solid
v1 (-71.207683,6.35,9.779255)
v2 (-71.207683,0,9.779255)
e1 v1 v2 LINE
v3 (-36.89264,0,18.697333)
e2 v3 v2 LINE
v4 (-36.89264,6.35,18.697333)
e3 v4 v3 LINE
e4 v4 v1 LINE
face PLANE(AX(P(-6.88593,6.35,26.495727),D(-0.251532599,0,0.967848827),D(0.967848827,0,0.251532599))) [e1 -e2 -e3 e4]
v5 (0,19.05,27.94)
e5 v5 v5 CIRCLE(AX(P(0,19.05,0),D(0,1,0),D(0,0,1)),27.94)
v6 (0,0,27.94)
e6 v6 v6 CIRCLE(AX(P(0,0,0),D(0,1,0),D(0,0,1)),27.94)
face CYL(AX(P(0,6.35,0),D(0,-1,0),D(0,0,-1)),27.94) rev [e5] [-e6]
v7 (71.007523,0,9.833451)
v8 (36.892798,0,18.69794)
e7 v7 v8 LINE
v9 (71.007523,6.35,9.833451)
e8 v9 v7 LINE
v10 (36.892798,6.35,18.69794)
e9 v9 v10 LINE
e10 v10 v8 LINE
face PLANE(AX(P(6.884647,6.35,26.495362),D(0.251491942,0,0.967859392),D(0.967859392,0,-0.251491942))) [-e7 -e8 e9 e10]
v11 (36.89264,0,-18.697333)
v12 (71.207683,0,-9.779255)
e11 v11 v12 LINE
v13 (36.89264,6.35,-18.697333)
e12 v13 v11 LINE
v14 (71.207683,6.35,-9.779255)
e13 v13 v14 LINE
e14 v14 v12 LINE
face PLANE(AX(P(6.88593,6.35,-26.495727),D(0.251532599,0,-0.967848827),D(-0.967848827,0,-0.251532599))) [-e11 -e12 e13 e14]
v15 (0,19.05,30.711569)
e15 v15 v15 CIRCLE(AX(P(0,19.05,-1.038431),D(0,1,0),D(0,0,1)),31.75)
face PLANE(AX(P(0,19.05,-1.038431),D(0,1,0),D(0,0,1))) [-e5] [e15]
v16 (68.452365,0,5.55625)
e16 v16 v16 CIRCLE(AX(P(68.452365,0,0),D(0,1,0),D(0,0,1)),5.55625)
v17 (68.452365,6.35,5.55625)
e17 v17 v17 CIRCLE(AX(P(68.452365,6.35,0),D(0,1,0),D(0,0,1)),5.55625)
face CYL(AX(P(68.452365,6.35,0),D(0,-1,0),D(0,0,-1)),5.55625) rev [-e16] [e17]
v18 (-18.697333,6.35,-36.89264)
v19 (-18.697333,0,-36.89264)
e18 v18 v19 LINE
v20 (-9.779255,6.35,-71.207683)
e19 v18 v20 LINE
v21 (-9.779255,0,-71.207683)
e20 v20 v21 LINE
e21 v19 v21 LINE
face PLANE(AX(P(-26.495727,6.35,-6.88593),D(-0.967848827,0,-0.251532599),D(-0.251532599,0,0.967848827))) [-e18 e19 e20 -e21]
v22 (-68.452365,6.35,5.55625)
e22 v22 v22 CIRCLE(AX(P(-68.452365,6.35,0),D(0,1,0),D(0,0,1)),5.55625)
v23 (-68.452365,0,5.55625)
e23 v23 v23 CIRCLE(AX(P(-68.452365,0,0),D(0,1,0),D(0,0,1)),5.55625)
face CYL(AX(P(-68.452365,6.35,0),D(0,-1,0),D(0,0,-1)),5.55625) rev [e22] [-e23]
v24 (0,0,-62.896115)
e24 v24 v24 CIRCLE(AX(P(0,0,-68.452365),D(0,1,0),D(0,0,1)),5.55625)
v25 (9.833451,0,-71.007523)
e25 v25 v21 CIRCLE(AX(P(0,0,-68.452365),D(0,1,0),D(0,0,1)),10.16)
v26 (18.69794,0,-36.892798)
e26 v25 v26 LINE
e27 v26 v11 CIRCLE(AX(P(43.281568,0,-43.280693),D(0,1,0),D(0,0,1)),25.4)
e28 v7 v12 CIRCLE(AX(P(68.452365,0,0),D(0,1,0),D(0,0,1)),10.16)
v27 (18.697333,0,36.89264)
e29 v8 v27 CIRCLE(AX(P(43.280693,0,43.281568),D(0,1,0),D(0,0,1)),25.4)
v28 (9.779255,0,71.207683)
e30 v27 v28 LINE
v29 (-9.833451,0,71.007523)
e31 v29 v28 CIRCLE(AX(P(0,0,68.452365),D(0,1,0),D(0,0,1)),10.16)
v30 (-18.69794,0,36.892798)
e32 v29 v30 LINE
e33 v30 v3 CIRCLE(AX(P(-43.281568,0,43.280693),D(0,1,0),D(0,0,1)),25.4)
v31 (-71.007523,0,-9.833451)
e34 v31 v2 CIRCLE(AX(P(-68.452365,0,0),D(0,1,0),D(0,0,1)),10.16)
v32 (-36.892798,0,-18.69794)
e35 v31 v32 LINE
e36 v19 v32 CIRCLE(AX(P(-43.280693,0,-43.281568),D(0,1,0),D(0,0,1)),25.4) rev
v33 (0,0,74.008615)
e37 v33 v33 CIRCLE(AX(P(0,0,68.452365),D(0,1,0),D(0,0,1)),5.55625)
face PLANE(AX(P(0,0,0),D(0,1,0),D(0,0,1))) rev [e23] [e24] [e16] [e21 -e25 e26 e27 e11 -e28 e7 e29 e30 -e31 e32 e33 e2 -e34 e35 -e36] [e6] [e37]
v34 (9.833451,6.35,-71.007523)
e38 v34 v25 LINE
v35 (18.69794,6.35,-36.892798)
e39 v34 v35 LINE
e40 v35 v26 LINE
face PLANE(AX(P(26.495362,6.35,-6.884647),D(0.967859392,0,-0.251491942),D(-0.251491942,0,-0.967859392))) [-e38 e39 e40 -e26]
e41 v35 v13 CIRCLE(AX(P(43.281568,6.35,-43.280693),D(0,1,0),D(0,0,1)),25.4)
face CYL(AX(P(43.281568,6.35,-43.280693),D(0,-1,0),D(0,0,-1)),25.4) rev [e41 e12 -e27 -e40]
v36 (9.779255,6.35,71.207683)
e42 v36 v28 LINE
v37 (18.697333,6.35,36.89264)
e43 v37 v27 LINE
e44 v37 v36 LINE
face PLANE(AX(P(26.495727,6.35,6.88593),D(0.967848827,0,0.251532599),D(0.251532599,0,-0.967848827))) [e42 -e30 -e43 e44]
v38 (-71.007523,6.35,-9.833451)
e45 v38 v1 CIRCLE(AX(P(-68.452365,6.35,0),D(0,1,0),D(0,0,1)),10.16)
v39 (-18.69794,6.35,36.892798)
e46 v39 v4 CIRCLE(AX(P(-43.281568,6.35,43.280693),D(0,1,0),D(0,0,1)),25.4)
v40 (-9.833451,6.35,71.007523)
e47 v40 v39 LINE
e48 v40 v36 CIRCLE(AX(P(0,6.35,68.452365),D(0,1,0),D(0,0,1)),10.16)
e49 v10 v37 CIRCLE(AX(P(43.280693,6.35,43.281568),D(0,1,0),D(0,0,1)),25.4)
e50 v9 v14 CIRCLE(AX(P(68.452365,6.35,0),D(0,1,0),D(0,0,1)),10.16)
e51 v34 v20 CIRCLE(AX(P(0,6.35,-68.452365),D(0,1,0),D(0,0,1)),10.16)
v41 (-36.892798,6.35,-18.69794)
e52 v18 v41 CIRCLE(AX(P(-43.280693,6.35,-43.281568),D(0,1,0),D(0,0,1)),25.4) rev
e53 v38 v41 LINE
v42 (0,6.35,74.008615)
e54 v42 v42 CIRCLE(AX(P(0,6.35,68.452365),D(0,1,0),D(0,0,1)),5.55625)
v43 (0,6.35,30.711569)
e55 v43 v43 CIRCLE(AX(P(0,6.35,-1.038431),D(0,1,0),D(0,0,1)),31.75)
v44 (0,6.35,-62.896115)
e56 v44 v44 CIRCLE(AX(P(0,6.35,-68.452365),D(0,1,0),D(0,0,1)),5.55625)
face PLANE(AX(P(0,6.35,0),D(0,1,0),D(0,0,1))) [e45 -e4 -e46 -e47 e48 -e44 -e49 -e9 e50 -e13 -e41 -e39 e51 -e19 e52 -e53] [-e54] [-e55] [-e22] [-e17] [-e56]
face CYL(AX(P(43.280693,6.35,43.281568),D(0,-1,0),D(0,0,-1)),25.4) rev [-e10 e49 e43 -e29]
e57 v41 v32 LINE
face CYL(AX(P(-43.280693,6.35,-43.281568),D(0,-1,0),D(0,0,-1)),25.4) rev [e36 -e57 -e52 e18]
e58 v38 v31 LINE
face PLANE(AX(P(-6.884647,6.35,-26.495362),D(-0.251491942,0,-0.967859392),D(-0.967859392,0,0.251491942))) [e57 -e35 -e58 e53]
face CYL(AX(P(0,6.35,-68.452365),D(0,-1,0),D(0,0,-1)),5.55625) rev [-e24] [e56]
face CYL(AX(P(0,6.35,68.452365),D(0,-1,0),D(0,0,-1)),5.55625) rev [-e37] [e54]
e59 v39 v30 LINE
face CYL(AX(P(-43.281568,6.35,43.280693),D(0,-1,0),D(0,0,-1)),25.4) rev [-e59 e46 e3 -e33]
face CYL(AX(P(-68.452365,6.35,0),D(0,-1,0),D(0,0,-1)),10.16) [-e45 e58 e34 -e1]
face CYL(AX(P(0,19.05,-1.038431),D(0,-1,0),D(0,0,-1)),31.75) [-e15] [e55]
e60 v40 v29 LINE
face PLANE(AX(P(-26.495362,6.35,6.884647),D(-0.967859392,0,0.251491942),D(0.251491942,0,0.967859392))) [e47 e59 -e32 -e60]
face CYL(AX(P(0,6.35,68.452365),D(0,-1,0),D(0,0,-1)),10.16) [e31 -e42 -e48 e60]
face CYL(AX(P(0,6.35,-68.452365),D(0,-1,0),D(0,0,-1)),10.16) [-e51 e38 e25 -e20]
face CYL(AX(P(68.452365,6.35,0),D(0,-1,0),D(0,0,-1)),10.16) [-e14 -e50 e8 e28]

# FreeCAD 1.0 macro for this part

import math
import FreeCAD as App
import Part
import Sketcher
Q = App.Units.Quantity

doc = App.newDocument("Part")
body = doc.addObject("PartDesign::Body", "Body")

# Sketch on XZ plane
sketch1 = doc.addObject("Sketcher::SketchObject", "Sketch")
body.addObject(sketch1)
sketch1.AttachmentSupport = (doc.XZ_Plane, [""])
sketch1.MapMode = "FlatFace"
sketch1.addGeometry([
    Part.ArcOfCircle(Part.Circle(App.Vector(-68.45, 0, 0), App.Vector(0, 0, 1), 10.16), math.radians(106), math.radians(255)),  # 0
    Part.LineSegment(App.Vector(-71.21, 9.78, 0), App.Vector(-70.81, 9.88, 0)),  # 1
    Part.LineSegment(App.Vector(-70.81, 9.88, 0), App.Vector(-36.89, 18.7, 0)),  # 2
    Part.ArcOfCircle(Part.Circle(App.Vector(-43.28, 43.28, 0), App.Vector(0, 0, 1), 25.4), math.radians(-75), math.radians(-15)),  # 3
    Part.LineSegment(App.Vector(-18.7, 36.89, 0), App.Vector(-9.83, 71.01, 0)),  # 4
    Part.ArcOfCircle(Part.Circle(App.Vector(0, 68.45, 0), App.Vector(0, 0, 1), 10.16), math.radians(16), math.radians(165)),  # 5
    Part.LineSegment(App.Vector(9.78, 71.21, 0), App.Vector(9.88, 70.81, 0)),  # 6
    Part.LineSegment(App.Vector(9.88, 70.81, 0), App.Vector(18.7, 36.89, 0)),  # 7
    Part.ArcOfCircle(Part.Circle(App.Vector(43.28, 43.28, 0), App.Vector(0, 0, 1), 25.4), math.radians(-165), math.radians(-105)),  # 8
    Part.LineSegment(App.Vector(36.89, 18.7, 0), App.Vector(71.01, 9.83, 0)),  # 9
    Part.ArcOfCircle(Part.Circle(App.Vector(68.45, 0, 0), App.Vector(0, 0, 1), 10.16), math.radians(0), math.radians(75)),  # 10
    Part.ArcOfCircle(Part.Circle(App.Vector(68.45, 0, 0), App.Vector(0, 0, 1), 10.16), math.radians(-74), math.radians(0)),  # 11
    Part.LineSegment(App.Vector(71.21, -9.78, 0), App.Vector(70.81, -9.88, 0)),  # 12
    Part.LineSegment(App.Vector(70.81, -9.88, 0), App.Vector(36.89, -18.7, 0)),  # 13
    Part.ArcOfCircle(Part.Circle(App.Vector(43.28, -43.28, 0), App.Vector(0, 0, 1), 25.4), math.radians(105), math.radians(165)),  # 14
    Part.LineSegment(App.Vector(18.7, -36.89, 0), App.Vector(9.83, -71.01, 0)),  # 15
    Part.ArcOfCircle(Part.Circle(App.Vector(0, -68.45, 0), App.Vector(0, 0, 1), 10.16), math.radians(-164), math.radians(-15)),  # 16
    Part.LineSegment(App.Vector(-9.78, -71.21, 0), App.Vector(-9.88, -70.81, 0)),  # 17
    Part.LineSegment(App.Vector(-9.88, -70.81, 0), App.Vector(-18.7, -36.89, 0)),  # 18
    Part.ArcOfCircle(Part.Circle(App.Vector(-43.28, -43.28, 0), App.Vector(0, 0, 1), 25.4), math.radians(15), math.radians(75)),  # 19
    Part.LineSegment(App.Vector(-36.89, -18.7, 0), App.Vector(-71.01, -9.83, 0)),  # 20
    Part.Circle(App.Vector(-68.45, 0, 0), App.Vector(0, 0, 1), 5.56),  # 21
    Part.Circle(App.Vector(0, -68.45, 0), App.Vector(0, 0, 1), 5.56),  # 22
    Part.Circle(App.Vector(0, 0, 0), App.Vector(0, 0, 1), 27.94),  # 23
    Part.Circle(App.Vector(0, 68.45, 0), App.Vector(0, 0, 1), 5.56),  # 24
    Part.Circle(App.Vector(68.45, 0, 0), App.Vector(0, 0, 1), 5.56),  # 25
], False)
sketch1.addConstraint([
    Sketcher.Constraint("Coincident", 0, 1, 1, 1),
    Sketcher.Constraint("Coincident", 1, 2, 2, 1),
    Sketcher.Constraint("Tangent", 2, 2, 3, 1),
    Sketcher.Constraint("Tangent", 3, 2, 4, 1),
    Sketcher.Constraint("Tangent", 4, 2, 5, 2),
    Sketcher.Constraint("Coincident", 5, 1, 6, 1),
    Sketcher.Constraint("Coincident", 6, 2, 7, 1),
    Sketcher.Constraint("Tangent", 7, 2, 8, 1),
    Sketcher.Constraint("Tangent", 8, 2, 9, 1),
    Sketcher.Constraint("Tangent", 9, 2, 10, 2),
    Sketcher.Constraint("Tangent", 10, 1, 11, 2),
    Sketcher.Constraint("Coincident", 11, 1, 12, 1),
    Sketcher.Constraint("Coincident", 12, 2, 13, 1),
    Sketcher.Constraint("Tangent", 13, 2, 14, 1),
    Sketcher.Constraint("Tangent", 14, 2, 15, 1),
    Sketcher.Constraint("Tangent", 15, 2, 16, 2),
    Sketcher.Constraint("Coincident", 16, 1, 17, 1),
    Sketcher.Constraint("Coincident", 17, 2, 18, 1),
    Sketcher.Constraint("Tangent", 18, 2, 19, 1),
    Sketcher.Constraint("Tangent", 19, 2, 20, 1),
    Sketcher.Constraint("Tangent", 20, 2, 0, 2),
    Sketcher.Constraint("Coincident", 23, 3, -1, 1),
    Sketcher.Constraint("Coincident", 21, 3, 0, 3),
    Sketcher.Constraint("Coincident", 22, 3, 16, 3),
    Sketcher.Constraint("Coincident", 24, 3, 5, 3),
    Sketcher.Constraint("Coincident", 25, 3, 10, 3),
    Sketcher.Constraint("Equal", 0, 5),
    Sketcher.Constraint("Equal", 3, 8),
    Sketcher.Constraint("Equal", 5, 10),
    Sketcher.Constraint("Equal", 10, 11),
    Sketcher.Constraint("Equal", 8, 14),
    Sketcher.Constraint("Equal", 11, 16),
    Sketcher.Constraint("Equal", 14, 19),
    Sketcher.Constraint("Equal", 21, 22),
    Sketcher.Constraint("Equal", 22, 24),
    Sketcher.Constraint("Equal", 24, 25),
    Sketcher.Constraint("Symmetric", 0, 3, 10, 3, -1, 1),
    Sketcher.Constraint("Symmetric", 3, 3, 14, 3, -1, 1),
    Sketcher.Constraint("Symmetric", 5, 3, 16, 3, -1, 1),
    Sketcher.Constraint("Symmetric", 8, 3, 19, 3, -1, 1),
    Sketcher.Constraint("Symmetric", 1, 2, 12, 2, -1, 1),
    Sketcher.Constraint("Symmetric", 6, 2, 17, 2, -1, 1),
    Sketcher.Constraint("PointOnObject", 0, 3, -1),
    Sketcher.Constraint("PointOnObject", 5, 3, -2),
    Sketcher.Constraint("PointOnObject", 10, 1, -1),
    Sketcher.Constraint("Parallel", 1, 2),
    Sketcher.Constraint("Perpendicular", 2, 6),
    Sketcher.Constraint("Parallel", 6, 7),
    Sketcher.Constraint("Perpendicular", 4, 9),
    Sketcher.Constraint("Perpendicular", 7, 12),
    Sketcher.Constraint("Perpendicular", 13, 17),
    Sketcher.Constraint("Equal", 1, 6),
    Sketcher.Constraint("Equal", 2, 7),
    Sketcher.Constraint("Equal", 4, 9),
    Sketcher.Constraint("Radius", 3, Q("1 in")),
    Sketcher.Constraint("Diameter", 23, Q("2.2 in")),
    Sketcher.Constraint("Radius", 0, Q("0.4 in")),
    Sketcher.Constraint("Diameter", 21, Q("0.4375 in")),
    Sketcher.Constraint("Distance", 2, Q("35.041101 mm")),
    Sketcher.Constraint("DistanceY", -1, 1, 3, 2, Q("36.892798 mm")),
    Sketcher.Constraint("DistanceY", 0, 1, 1, 2, Q("0.104099 mm")),
    Sketcher.Constraint("DistanceX", 2, 2, 3, 2, Q("18.194701 mm")),
    Sketcher.Constraint("DistanceX", 3, 3, -1, 1, Q("43.281568 mm")),
])
pad1 = doc.addObject("PartDesign::Pad", "Pad")
body.addObject(pad1)
pad1.Profile = sketch1
pad1.Length = Q("0.25 in")
pad1.Reversed = True

# Sketch on XZ plane
sketch2 = doc.addObject("Sketcher::SketchObject", "Sketch001")
body.addObject(sketch2)
sketch2.AttachmentSupport = (doc.XZ_Plane, [""])
sketch2.MapMode = "FlatFace"
sketch2.AttachmentOffset = App.Placement(App.Vector(0, 0, -0.25 * 25.4), App.Rotation())
sketch2.addGeometry([
    Part.Circle(App.Vector(0, -1, 0), App.Vector(0, 0, 1), 32),
    Part.Circle(App.Vector(0, 0, 0), App.Vector(0, 0, 1), 28),
], False)
sketch2.addConstraint([
    Sketcher.Constraint("Coincident", 1, 3, -1, 1),
    Sketcher.Constraint("PointOnObject", 0, 3, -2),
    Sketcher.Constraint("Diameter", 0, Q("2.5 in")),
    Sketcher.Constraint("Diameter", 1, Q("2.2 in")),
    Sketcher.Constraint("DistanceY", 0, 3, -1, 1, Q("1.038431 mm")),
])
pad2 = doc.addObject("PartDesign::Pad", "Pad001")
body.addObject(pad2)
pad2.Profile = sketch2
pad2.Length = Q("0.5 in")
pad2.Reversed = True

doc.recompute()
